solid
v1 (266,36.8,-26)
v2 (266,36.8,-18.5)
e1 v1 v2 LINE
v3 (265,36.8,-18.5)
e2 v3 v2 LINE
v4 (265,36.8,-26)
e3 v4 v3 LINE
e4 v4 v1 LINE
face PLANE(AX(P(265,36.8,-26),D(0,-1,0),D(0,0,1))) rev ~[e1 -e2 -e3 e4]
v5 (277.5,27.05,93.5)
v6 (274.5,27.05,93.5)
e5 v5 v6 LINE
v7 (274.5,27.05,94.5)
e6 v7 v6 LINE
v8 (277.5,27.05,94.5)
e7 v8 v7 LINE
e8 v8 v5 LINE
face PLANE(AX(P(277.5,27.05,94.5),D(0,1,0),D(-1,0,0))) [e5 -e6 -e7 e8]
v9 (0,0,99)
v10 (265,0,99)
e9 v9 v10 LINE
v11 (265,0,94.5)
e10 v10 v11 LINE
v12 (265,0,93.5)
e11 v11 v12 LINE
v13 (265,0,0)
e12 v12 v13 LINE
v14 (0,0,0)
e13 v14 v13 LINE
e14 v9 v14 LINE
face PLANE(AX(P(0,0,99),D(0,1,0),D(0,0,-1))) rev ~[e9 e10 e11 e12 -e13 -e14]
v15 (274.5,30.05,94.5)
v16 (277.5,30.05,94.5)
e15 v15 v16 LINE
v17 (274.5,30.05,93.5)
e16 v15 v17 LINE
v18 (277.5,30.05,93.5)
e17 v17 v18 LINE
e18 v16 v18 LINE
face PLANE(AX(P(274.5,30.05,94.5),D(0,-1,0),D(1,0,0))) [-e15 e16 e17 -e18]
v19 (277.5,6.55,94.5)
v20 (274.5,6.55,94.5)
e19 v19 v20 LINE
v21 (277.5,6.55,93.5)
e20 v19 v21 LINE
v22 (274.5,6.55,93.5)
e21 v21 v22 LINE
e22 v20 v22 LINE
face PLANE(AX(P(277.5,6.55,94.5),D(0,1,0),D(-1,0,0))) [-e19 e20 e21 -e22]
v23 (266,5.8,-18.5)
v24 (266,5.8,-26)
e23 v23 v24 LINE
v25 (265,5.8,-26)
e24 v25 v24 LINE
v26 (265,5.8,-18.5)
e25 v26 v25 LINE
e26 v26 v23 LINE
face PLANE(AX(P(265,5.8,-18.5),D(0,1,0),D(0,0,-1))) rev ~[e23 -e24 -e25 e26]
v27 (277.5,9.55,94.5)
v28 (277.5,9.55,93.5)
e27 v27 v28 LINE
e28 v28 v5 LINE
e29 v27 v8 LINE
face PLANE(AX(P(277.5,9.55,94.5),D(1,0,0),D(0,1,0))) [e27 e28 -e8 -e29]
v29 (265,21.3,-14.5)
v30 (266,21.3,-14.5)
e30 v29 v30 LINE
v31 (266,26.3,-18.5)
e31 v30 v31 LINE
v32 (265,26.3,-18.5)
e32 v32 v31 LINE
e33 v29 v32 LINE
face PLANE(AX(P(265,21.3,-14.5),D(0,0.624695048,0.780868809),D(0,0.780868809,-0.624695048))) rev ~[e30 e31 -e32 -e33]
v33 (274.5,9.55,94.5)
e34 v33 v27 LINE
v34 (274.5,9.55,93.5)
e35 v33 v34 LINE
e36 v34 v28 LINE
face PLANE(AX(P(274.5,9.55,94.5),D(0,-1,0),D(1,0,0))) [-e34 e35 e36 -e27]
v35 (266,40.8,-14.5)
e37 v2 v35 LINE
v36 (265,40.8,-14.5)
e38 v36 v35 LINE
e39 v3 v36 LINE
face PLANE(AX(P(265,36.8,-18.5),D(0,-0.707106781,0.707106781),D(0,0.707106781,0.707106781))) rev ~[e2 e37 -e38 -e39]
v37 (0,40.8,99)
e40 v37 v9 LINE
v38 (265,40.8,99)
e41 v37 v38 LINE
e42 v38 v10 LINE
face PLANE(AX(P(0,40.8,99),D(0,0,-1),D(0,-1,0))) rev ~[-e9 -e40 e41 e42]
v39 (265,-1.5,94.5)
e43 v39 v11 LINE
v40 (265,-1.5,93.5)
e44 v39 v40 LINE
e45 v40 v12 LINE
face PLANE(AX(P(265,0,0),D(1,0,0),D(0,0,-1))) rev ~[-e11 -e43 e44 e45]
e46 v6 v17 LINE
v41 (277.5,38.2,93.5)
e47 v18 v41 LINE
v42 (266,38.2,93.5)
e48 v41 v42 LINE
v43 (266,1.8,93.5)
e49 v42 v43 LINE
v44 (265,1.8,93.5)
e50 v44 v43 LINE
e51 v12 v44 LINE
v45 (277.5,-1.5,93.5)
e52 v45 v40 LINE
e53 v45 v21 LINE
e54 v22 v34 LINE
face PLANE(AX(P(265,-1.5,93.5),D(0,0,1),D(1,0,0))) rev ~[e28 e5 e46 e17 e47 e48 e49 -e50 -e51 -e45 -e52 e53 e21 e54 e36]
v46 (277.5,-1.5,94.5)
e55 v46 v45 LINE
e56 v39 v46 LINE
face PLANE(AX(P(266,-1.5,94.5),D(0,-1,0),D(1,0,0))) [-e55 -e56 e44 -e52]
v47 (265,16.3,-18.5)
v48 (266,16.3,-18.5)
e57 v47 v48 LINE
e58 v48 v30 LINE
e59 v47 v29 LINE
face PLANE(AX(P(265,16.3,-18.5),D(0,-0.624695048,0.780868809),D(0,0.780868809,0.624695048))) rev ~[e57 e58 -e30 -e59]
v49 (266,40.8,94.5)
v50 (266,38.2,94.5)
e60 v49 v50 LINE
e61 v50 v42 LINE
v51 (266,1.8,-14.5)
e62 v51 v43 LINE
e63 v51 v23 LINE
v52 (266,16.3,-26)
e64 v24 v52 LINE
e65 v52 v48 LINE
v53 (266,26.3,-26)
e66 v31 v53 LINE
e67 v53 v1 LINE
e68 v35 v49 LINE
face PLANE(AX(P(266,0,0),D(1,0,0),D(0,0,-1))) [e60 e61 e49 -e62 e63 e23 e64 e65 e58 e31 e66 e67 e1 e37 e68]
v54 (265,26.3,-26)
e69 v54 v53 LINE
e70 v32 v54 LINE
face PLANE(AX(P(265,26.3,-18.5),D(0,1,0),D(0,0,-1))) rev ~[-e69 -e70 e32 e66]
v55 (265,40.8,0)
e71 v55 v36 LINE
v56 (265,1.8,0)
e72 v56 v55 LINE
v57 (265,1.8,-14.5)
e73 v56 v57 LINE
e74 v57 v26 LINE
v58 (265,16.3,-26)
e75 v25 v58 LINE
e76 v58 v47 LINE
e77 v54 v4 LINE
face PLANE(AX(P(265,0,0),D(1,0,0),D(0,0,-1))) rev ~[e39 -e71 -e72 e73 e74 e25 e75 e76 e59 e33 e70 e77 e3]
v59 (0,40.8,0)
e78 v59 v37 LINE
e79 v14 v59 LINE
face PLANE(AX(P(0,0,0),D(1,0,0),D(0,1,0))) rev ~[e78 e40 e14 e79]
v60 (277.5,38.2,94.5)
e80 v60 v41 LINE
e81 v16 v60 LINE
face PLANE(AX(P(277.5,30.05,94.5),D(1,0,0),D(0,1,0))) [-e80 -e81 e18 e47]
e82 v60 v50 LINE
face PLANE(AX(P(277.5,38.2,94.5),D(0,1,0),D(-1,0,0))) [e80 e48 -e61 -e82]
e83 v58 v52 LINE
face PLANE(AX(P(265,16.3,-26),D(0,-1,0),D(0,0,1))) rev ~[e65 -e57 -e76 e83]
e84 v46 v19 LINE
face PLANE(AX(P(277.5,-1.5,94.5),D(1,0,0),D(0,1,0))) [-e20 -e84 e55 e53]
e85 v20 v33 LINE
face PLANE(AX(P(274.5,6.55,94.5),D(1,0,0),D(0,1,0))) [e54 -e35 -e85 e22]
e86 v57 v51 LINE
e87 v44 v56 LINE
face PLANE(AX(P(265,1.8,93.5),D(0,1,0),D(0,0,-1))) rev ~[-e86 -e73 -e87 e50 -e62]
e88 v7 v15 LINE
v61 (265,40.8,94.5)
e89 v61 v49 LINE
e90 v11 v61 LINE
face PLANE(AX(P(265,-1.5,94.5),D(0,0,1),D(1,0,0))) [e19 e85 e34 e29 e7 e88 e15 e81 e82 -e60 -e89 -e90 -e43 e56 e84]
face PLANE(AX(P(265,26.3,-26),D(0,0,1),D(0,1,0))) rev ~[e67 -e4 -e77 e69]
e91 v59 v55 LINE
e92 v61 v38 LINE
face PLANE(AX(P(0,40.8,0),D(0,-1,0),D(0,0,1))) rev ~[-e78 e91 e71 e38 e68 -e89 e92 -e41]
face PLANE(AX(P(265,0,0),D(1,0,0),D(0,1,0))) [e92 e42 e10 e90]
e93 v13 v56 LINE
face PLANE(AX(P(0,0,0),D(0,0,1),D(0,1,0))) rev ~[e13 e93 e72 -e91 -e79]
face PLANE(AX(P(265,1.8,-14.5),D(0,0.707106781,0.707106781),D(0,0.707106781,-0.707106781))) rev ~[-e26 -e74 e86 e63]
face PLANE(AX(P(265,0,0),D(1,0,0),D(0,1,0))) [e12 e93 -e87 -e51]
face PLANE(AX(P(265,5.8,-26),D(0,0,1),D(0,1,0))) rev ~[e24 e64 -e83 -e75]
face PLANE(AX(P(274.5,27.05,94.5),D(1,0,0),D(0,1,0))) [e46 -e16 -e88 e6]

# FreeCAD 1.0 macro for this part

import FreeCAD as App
import Part
import Sketcher

V = App.Vector
Q = App.Units.Quantity

doc = App.newDocument("Part")
body = doc.addObject("PartDesign::Body", "Body")

sketch1 = body.newObject("Sketcher::SketchObject", "Sketch")
sketch1.AttachmentSupport = (doc.getObject("YZ_Plane"), [""])
sketch1.MapMode = "FlatFace"
sketch1.addGeometry([
    Part.LineSegment(V(0, 99, 0), V(0, 0, 0)),
    Part.LineSegment(V(0, 0, 0), V(40.8, 0, 0)),
    Part.LineSegment(V(40.8, 0, 0), V(40.8, 99, 0)),
    Part.LineSegment(V(40.8, 99, 0), V(0, 99, 0)),
], False)
sketch1.addConstraint([
    Sketcher.Constraint("Coincident", 0, 2, 1, 1),
    Sketcher.Constraint("Coincident", 1, 2, 2, 1),
    Sketcher.Constraint("Coincident", 2, 2, 3, 1),
    Sketcher.Constraint("Coincident", 3, 2, 0, 1),
    Sketcher.Constraint("Vertical", 0),
    Sketcher.Constraint("Horizontal", 1),
    Sketcher.Constraint("Vertical", 2),
    Sketcher.Constraint("Horizontal", 3),
    Sketcher.Constraint("Coincident", 0, 2, -1, 1),
    Sketcher.Constraint("DistanceY", 0, 2, 0, 1, Q("99 mm")),
    Sketcher.Constraint("DistanceX", 1, 1, 1, 2, Q("40.8 mm")),
])
pad1 = body.newObject("PartDesign::Pad", "Pad")
pad1.Profile = sketch1
pad1.Length = 265

sketch2 = body.newObject("Sketcher::SketchObject", "Sketch001")
sketch2.AttachmentSupport = (doc.getObject("YZ_Plane"), [""])
sketch2.MapMode = "FlatFace"
sketch2.AttachmentOffset = App.Placement(V(0, 0, 265), App.Rotation())
sketch2.addGeometry([
    Part.LineSegment(V(1.8, 93.5, 0), V(1.8, -14.5, 0)),
    Part.LineSegment(V(1.8, -14.5, 0), V(5.8, -18.5, 0)),
    Part.LineSegment(V(5.8, -18.5, 0), V(5.8, -26, 0)),
    Part.LineSegment(V(5.8, -26, 0), V(16.3, -26, 0)),
    Part.LineSegment(V(16.3, -26, 0), V(16.3, -18.5, 0)),
    Part.LineSegment(V(16.3, -18.5, 0), V(21.3, -14.5, 0)),
    Part.LineSegment(V(21.3, -14.5, 0), V(26.3, -18.5, 0)),
    Part.LineSegment(V(26.3, -18.5, 0), V(26.3, -26, 0)),
    Part.LineSegment(V(26.3, -26, 0), V(36.8, -26, 0)),
    Part.LineSegment(V(36.8, -26, 0), V(36.8, -18.5, 0)),
    Part.LineSegment(V(36.8, -18.5, 0), V(40.8, -14.5, 0)),
    Part.LineSegment(V(40.8, -14.5, 0), V(40.8, 94.5, 0)),
    Part.LineSegment(V(40.8, 94.5, 0), V(-1.5, 94.5, 0)),
    Part.LineSegment(V(-1.5, 94.5, 0), V(-1.5, 93.5, 0)),
    Part.LineSegment(V(-1.5, 93.5, 0), V(1.8, 93.5, 0)),
], False)
sketch2.addConstraint([
    Sketcher.Constraint("Coincident", 0, 2, 1, 1),
    Sketcher.Constraint("Coincident", 1, 2, 2, 1),
    Sketcher.Constraint("Coincident", 2, 2, 3, 1),
    Sketcher.Constraint("Coincident", 3, 2, 4, 1),
    Sketcher.Constraint("Coincident", 4, 2, 5, 1),
    Sketcher.Constraint("Coincident", 5, 2, 6, 1),
    Sketcher.Constraint("Coincident", 6, 2, 7, 1),
    Sketcher.Constraint("Coincident", 7, 2, 8, 1),
    Sketcher.Constraint("Coincident", 8, 2, 9, 1),
    Sketcher.Constraint("Coincident", 9, 2, 10, 1),
    Sketcher.Constraint("Coincident", 10, 2, 11, 1),
    Sketcher.Constraint("Coincident", 11, 2, 12, 1),
    Sketcher.Constraint("Coincident", 12, 2, 13, 1),
    Sketcher.Constraint("Coincident", 13, 2, 14, 1),
    Sketcher.Constraint("Coincident", 14, 2, 0, 1),
    Sketcher.Constraint("Vertical", 0),
    Sketcher.Constraint("Vertical", 2),
    Sketcher.Constraint("Horizontal", 3),
    Sketcher.Constraint("Vertical", 4),
    Sketcher.Constraint("Vertical", 7),
    Sketcher.Constraint("Horizontal", 8),
    Sketcher.Constraint("Vertical", 9),
    Sketcher.Constraint("Vertical", 11),
    Sketcher.Constraint("Horizontal", 12),
    Sketcher.Constraint("Vertical", 13),
    Sketcher.Constraint("Horizontal", 14),
    Sketcher.Constraint("Perpendicular", 1, 10),
    Sketcher.Constraint("Horizontal", 1, 2, 4, 2),
    Sketcher.Constraint("Horizontal", 0, 2, 5, 2),
    Sketcher.Constraint("Horizontal", 4, 2, 6, 2),
    Sketcher.Constraint("Horizontal", 3, 2, 7, 2),
    Sketcher.Constraint("Horizontal", 6, 2, 9, 2),
    Sketcher.Constraint("Horizontal", 5, 2, 10, 2),
    Sketcher.Constraint("Equal", 3, 8),
    Sketcher.Constraint("Equal", 5, 6),
    Sketcher.Constraint("Equal", 1, 10),
    Sketcher.Constraint("DistanceY", 0, 2, 0, 1, Q("108 mm")),
    Sketcher.Constraint("DistanceY", 13, 2, 13, 1, Q("1 mm")),
    Sketcher.Constraint("DistanceX", 3, 1, 3, 2, Q("10.5 mm")),
    Sketcher.Constraint("DistanceY", 2, 2, 2, 1, Q("7.5 mm")),
    Sketcher.Constraint("DistanceX", 0, 2, 1, 2, Q("4 mm")),
    Sketcher.Constraint("DistanceX", 4, 2, 6, 2, Q("10 mm")),
    Sketcher.Constraint("DistanceX", 12, 2, -1, 1, Q("1.5 mm")),
    Sketcher.Constraint("DistanceX", 12, 2, 12, 1, Q("42.3 mm")),
    Sketcher.Constraint("DistanceY", 2, 2, -1, 1, Q("26 mm")),
])
pad2 = body.newObject("PartDesign::Pad", "Pad001")
pad2.Profile = sketch2
pad2.Length = 1

sketch3 = body.newObject("Sketcher::SketchObject", "Sketch002")
sketch3.AttachmentSupport = (doc.getObject("XY_Plane"), [""])
sketch3.MapMode = "FlatFace"
sketch3.AttachmentOffset = App.Placement(V(0, 0, 94.5), App.Rotation())
sketch3.addGeometry([
    Part.LineSegment(V(277.5, 38.2, 0), V(266, 38.2, 0)),
    Part.LineSegment(V(266, 38.2, 0), V(266, -1.5, 0)),
    Part.LineSegment(V(266, -1.5, 0), V(277.5, -1.5, 0)),
    Part.LineSegment(V(277.5, -1.5, 0), V(277.5, 6.55, 0)),
    Part.LineSegment(V(277.5, 6.55, 0), V(274.5, 6.55, 0)),
    Part.LineSegment(V(274.5, 6.55, 0), V(274.5, 9.55, 0)),
    Part.LineSegment(V(274.5, 9.55, 0), V(277.5, 9.55, 0)),
    Part.LineSegment(V(277.5, 9.55, 0), V(277.5, 27.05, 0)),
    Part.LineSegment(V(277.5, 27.05, 0), V(274.5, 27.05, 0)),
    Part.LineSegment(V(274.5, 27.05, 0), V(274.5, 30.05, 0)),
    Part.LineSegment(V(274.5, 30.05, 0), V(277.5, 30.05, 0)),
    Part.LineSegment(V(277.5, 30.05, 0), V(277.5, 38.2, 0)),
], False)
sketch3.addConstraint([
    Sketcher.Constraint("Coincident", 0, 2, 1, 1),
    Sketcher.Constraint("Coincident", 1, 2, 2, 1),
    Sketcher.Constraint("Coincident", 2, 2, 3, 1),
    Sketcher.Constraint("Coincident", 3, 2, 4, 1),
    Sketcher.Constraint("Coincident", 4, 2, 5, 1),
    Sketcher.Constraint("Coincident", 5, 2, 6, 1),
    Sketcher.Constraint("Coincident", 6, 2, 7, 1),
    Sketcher.Constraint("Coincident", 7, 2, 8, 1),
    Sketcher.Constraint("Coincident", 8, 2, 9, 1),
    Sketcher.Constraint("Coincident", 9, 2, 10, 1),
    Sketcher.Constraint("Coincident", 10, 2, 11, 1),
    Sketcher.Constraint("Coincident", 11, 2, 0, 1),
    Sketcher.Constraint("Horizontal", 0),
    Sketcher.Constraint("Vertical", 1),
    Sketcher.Constraint("Horizontal", 2),
    Sketcher.Constraint("Vertical", 3),
    Sketcher.Constraint("Horizontal", 4),
    Sketcher.Constraint("Vertical", 5),
    Sketcher.Constraint("Horizontal", 6),
    Sketcher.Constraint("Vertical", 7),
    Sketcher.Constraint("Horizontal", 8),
    Sketcher.Constraint("Vertical", 9),
    Sketcher.Constraint("Horizontal", 10),
    Sketcher.Constraint("Vertical", 11),
    Sketcher.Constraint("Vertical", 3, 2, 6, 2),
    Sketcher.Constraint("Vertical", 5, 2, 8, 2),
    Sketcher.Constraint("Vertical", 7, 2, 10, 2),
    Sketcher.Constraint("Equal", 10, 5),
    Sketcher.Constraint("Equal", 5, 9),
    Sketcher.Constraint("DistanceX", 4, 2, 4, 1, Q("3 mm")),
    Sketcher.Constraint("DistanceX", 0, 2, 0, 1, Q("11.5 mm")),
    Sketcher.Constraint("DistanceY", 3, 2, 7, 2, Q("20.5 mm")),
    Sketcher.Constraint("DistanceY", 1, 2, 1, 1, Q("39.7 mm")),
    Sketcher.Constraint("DistanceX", -1, 1, 0, 2, Q("266 mm")),
    Sketcher.Constraint("DistanceY", 3, 1, 3, 2, Q("8.05 mm")),
    Sketcher.Constraint("DistanceY", -1, 1, 0, 2, Q("38.2 mm")),
])
pad3 = body.newObject("PartDesign::Pad", "Pad002")
pad3.Profile = sketch3
pad3.Length = 1
pad3.Reversed = True

doc.recompute()
